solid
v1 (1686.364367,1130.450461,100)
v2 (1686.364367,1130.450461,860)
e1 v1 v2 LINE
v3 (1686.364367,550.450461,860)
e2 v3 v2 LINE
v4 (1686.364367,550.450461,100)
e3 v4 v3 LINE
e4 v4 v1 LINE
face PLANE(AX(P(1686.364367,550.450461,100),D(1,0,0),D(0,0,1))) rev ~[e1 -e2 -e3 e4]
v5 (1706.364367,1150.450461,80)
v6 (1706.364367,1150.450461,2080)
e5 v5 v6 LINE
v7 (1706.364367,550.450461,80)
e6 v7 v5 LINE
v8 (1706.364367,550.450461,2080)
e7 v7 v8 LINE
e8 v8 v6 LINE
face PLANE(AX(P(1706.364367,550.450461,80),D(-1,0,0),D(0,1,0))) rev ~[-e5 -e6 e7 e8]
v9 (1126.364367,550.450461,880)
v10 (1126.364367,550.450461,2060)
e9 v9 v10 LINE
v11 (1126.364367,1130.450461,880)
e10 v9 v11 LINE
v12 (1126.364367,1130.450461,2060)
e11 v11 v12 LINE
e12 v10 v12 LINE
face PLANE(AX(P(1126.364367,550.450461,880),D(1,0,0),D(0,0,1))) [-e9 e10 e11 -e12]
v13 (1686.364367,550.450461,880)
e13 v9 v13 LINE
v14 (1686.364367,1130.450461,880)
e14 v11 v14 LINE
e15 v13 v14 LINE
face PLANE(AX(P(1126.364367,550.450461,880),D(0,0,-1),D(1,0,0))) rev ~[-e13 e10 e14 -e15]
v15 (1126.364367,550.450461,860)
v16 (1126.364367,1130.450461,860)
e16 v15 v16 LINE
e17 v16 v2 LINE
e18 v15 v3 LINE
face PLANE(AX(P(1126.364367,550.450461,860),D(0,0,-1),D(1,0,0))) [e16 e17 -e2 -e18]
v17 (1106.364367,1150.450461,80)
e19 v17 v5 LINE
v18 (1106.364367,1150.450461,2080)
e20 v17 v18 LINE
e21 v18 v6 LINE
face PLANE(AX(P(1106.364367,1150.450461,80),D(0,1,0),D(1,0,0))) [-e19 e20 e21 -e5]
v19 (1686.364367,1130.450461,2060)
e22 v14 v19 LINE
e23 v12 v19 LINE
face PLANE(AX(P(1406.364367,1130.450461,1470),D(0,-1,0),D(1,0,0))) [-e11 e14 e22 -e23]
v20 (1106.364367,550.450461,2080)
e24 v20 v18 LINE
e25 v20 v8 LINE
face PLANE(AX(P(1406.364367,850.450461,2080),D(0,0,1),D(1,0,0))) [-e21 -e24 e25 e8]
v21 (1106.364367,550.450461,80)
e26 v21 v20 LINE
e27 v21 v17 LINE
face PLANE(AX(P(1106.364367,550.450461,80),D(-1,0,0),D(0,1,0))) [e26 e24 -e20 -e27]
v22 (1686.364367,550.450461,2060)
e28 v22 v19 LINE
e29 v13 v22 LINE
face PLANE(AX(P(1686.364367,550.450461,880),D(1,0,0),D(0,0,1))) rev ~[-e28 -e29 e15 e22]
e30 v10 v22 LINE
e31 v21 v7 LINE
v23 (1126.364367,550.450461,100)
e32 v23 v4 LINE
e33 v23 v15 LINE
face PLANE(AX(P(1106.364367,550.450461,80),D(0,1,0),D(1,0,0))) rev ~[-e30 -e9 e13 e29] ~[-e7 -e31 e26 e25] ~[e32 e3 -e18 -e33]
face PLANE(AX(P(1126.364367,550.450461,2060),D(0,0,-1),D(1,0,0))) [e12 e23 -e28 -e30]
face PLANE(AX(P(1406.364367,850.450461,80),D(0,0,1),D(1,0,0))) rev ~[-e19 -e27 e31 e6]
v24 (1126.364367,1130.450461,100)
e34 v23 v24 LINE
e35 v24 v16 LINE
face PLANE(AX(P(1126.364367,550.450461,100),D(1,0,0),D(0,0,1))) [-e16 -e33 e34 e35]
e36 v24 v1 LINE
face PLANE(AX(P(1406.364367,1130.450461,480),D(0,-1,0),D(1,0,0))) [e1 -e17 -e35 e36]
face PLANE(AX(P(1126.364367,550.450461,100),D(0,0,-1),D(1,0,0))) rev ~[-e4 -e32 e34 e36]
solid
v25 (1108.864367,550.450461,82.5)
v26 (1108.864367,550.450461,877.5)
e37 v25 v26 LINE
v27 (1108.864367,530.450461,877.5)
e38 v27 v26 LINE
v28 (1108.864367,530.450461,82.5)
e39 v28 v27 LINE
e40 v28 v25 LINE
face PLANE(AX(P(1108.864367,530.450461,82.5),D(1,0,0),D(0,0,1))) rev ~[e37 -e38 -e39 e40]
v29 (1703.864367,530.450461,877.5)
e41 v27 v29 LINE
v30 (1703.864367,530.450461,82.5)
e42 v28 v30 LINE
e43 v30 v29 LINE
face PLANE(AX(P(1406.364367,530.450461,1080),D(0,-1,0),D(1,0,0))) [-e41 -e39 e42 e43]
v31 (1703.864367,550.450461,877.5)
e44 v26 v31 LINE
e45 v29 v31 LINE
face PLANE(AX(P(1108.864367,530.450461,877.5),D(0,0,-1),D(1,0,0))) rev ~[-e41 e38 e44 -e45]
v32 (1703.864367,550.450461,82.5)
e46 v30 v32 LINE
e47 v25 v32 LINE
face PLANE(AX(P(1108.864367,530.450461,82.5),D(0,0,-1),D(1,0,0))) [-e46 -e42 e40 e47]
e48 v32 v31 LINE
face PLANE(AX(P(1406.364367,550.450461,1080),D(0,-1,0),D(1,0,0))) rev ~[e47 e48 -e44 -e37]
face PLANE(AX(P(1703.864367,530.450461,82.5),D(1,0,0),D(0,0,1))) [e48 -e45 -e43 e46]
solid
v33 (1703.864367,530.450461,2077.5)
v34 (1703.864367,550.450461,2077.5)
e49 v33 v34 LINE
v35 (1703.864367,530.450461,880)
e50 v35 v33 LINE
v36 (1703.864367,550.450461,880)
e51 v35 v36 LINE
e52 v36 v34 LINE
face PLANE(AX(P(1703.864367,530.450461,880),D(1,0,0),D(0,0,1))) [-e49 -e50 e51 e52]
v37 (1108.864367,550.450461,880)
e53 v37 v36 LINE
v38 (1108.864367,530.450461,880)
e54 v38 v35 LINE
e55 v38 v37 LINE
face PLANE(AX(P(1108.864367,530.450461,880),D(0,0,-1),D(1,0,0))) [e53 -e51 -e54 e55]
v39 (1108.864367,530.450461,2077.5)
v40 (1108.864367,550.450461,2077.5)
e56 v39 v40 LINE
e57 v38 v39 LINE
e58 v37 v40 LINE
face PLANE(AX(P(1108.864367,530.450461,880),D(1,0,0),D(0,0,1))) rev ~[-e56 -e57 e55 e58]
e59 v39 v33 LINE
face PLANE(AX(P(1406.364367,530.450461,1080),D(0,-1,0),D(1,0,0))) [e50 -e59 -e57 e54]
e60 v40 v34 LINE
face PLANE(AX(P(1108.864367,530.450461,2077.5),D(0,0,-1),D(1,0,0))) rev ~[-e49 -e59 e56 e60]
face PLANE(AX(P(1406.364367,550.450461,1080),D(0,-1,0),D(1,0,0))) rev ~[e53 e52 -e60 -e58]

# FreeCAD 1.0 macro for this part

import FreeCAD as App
import Part
import Sketcher

doc = App.newDocument("Part")
body = doc.addObject("PartDesign::Body", "Body")

# Sketch on XY plane
sketch1 = body.newObject("Sketcher::SketchObject", "Sketch")
sketch1.AttachmentSupport = (doc.getObject("XY_Plane"), [""])
sketch1.MapMode = "FlatFace"
sketch1.AttachmentOffset = App.Placement(App.Vector(0, 0, 80), App.Rotation())
sketch1.addGeometry([
    Part.LineSegment(App.Vector(1106, 1150, 0), App.Vector(1106, 550, 0)),
    Part.LineSegment(App.Vector(1106, 550, 0), App.Vector(1706, 550, 0)),
    Part.LineSegment(App.Vector(1706, 550, 0), App.Vector(1706, 1150, 0)),
    Part.LineSegment(App.Vector(1706, 1150, 0), App.Vector(1106, 1150, 0)),
], False)
sketch1.addConstraint([
    Sketcher.Constraint("Coincident", 0, 2, 1, 1),
    Sketcher.Constraint("Coincident", 1, 2, 2, 1),
    Sketcher.Constraint("Coincident", 2, 2, 3, 1),
    Sketcher.Constraint("Coincident", 3, 2, 0, 1),
    Sketcher.Constraint("Vertical", 0),
    Sketcher.Constraint("Horizontal", 1),
    Sketcher.Constraint("Vertical", 2),
    Sketcher.Constraint("Horizontal", 3),
    Sketcher.Constraint("Equal", 3, 0),
    Sketcher.Constraint("DistanceX", 1, 1, 1, 2, 600.0),
    Sketcher.Constraint("DistanceY", -1, 1, 0, 2, 550.450461),
    Sketcher.Constraint("DistanceX", -1, 1, 0, 2, 1106.364367),
])
pad1 = body.newObject("PartDesign::Pad", "Pad")
pad1.Profile = sketch1
pad1.Length = 2000

# Sketch on XZ plane
sketch2 = body.newObject("Sketcher::SketchObject", "Sketch001")
sketch2.AttachmentSupport = (doc.getObject("XZ_Plane"), [""])
sketch2.MapMode = "FlatFace"
sketch2.AttachmentOffset = App.Placement(App.Vector(0, 0, -550.450461), App.Rotation())
sketch2.addGeometry([
    Part.LineSegment(App.Vector(1126, 2060, 0), App.Vector(1126, 880, 0)),  # 0
    Part.LineSegment(App.Vector(1126, 880, 0), App.Vector(1686, 880, 0)),  # 1
    Part.LineSegment(App.Vector(1686, 880, 0), App.Vector(1686, 2060, 0)),  # 2
    Part.LineSegment(App.Vector(1686, 2060, 0), App.Vector(1126, 2060, 0)),  # 3
    Part.LineSegment(App.Vector(1126, 860, 0), App.Vector(1126, 100, 0)),  # 4
    Part.LineSegment(App.Vector(1126, 100, 0), App.Vector(1686, 100, 0)),  # 5
    Part.LineSegment(App.Vector(1686, 100, 0), App.Vector(1686, 860, 0)),  # 6
    Part.LineSegment(App.Vector(1686, 860, 0), App.Vector(1126, 860, 0)),  # 7
], False)
sketch2.addConstraint([
    Sketcher.Constraint("Coincident", 0, 2, 1, 1),
    Sketcher.Constraint("Coincident", 1, 2, 2, 1),
    Sketcher.Constraint("Coincident", 2, 2, 3, 1),
    Sketcher.Constraint("Coincident", 3, 2, 0, 1),
    Sketcher.Constraint("Coincident", 4, 2, 5, 1),
    Sketcher.Constraint("Coincident", 5, 2, 6, 1),
    Sketcher.Constraint("Coincident", 6, 2, 7, 1),
    Sketcher.Constraint("Coincident", 7, 2, 4, 1),
    Sketcher.Constraint("Vertical", 0),
    Sketcher.Constraint("Horizontal", 1),
    Sketcher.Constraint("Vertical", 2),
    Sketcher.Constraint("Horizontal", 3),
    Sketcher.Constraint("Vertical", 4),
    Sketcher.Constraint("Horizontal", 5),
    Sketcher.Constraint("Vertical", 6),
    Sketcher.Constraint("Horizontal", 7),
    Sketcher.Constraint("Vertical", 3, 2, 4, 2),
    Sketcher.Constraint("Vertical", 2, 2, 5, 2),
    Sketcher.Constraint("DistanceX", 1, 1, 1, 2, 560.0),
    Sketcher.Constraint("DistanceY", 0, 2, 0, 1, 1180.0),
    Sketcher.Constraint("DistanceY", 4, 2, 4, 1, 760.0),
    Sketcher.Constraint("DistanceY", -1, 1, 0, 2, 880.0),
    Sketcher.Constraint("DistanceY", -1, 1, 4, 2, 100.0),
    Sketcher.Constraint("DistanceX", -1, 1, 0, 2, 1126.364367),
])
pocket1 = body.newObject("PartDesign::Pocket", "Pocket")
pocket1.Profile = sketch2
pocket1.Length = 580

# Sketch on XZ plane
sketch3 = body.newObject("Sketcher::SketchObject", "Sketch002")
sketch3.AttachmentSupport = (doc.getObject("XZ_Plane"), [""])
sketch3.MapMode = "FlatFace"
sketch3.AttachmentOffset = App.Placement(App.Vector(0, 0, -530.450461), App.Rotation())
sketch3.addGeometry([
    Part.LineSegment(App.Vector(1706, 2080, 0), App.Vector(1106, 2080, 0)),  # 0
    Part.LineSegment(App.Vector(1106, 2080, 0), App.Vector(1106, 80, 0)),  # 1
    Part.LineSegment(App.Vector(1106, 80, 0), App.Vector(1706, 80, 0)),  # 2
    Part.LineSegment(App.Vector(1706, 80, 0), App.Vector(1706, 2080, 0)),  # 3
    Part.LineSegment(App.Vector(1704, 82, 0), App.Vector(1109, 82, 0)),  # 4
    Part.LineSegment(App.Vector(1109, 82, 0), App.Vector(1109, 878, 0)),  # 5
    Part.LineSegment(App.Vector(1109, 878, 0), App.Vector(1704, 878, 0)),  # 6
    Part.LineSegment(App.Vector(1704, 878, 0), App.Vector(1704, 82, 0)),  # 7
    Part.LineSegment(App.Vector(1704, 880, 0), App.Vector(1109, 880, 0)),  # 8
    Part.LineSegment(App.Vector(1109, 880, 0), App.Vector(1109, 2078, 0)),  # 9
    Part.LineSegment(App.Vector(1109, 2078, 0), App.Vector(1704, 2078, 0)),  # 10
    Part.LineSegment(App.Vector(1704, 2078, 0), App.Vector(1704, 880, 0)),  # 11
], False)
sketch3.addConstraint([
    Sketcher.Constraint("Coincident", 0, 2, 1, 1),
    Sketcher.Constraint("Coincident", 1, 2, 2, 1),
    Sketcher.Constraint("Coincident", 2, 2, 3, 1),
    Sketcher.Constraint("Coincident", 3, 2, 0, 1),
    Sketcher.Constraint("Coincident", 4, 2, 5, 1),
    Sketcher.Constraint("Coincident", 5, 2, 6, 1),
    Sketcher.Constraint("Coincident", 6, 2, 7, 1),
    Sketcher.Constraint("Coincident", 7, 2, 4, 1),
    Sketcher.Constraint("Coincident", 8, 2, 9, 1),
    Sketcher.Constraint("Coincident", 9, 2, 10, 1),
    Sketcher.Constraint("Coincident", 10, 2, 11, 1),
    Sketcher.Constraint("Coincident", 11, 2, 8, 1),
    Sketcher.Constraint("Horizontal", 0),
    Sketcher.Constraint("Vertical", 1),
    Sketcher.Constraint("Horizontal", 2),
    Sketcher.Constraint("Vertical", 3),
    Sketcher.Constraint("Horizontal", 4),
    Sketcher.Constraint("Vertical", 5),
    Sketcher.Constraint("Horizontal", 6),
    Sketcher.Constraint("Vertical", 7),
    Sketcher.Constraint("Horizontal", 8),
    Sketcher.Constraint("Vertical", 9),
    Sketcher.Constraint("Horizontal", 10),
    Sketcher.Constraint("Vertical", 11),
    Sketcher.Constraint("Vertical", 5, 2, 8, 2),
    Sketcher.Constraint("Vertical", 7, 2, 10, 2),
    Sketcher.Constraint("DistanceX", 0, 2, 0, 1, 600.0),
    Sketcher.Constraint("DistanceX", 4, 2, 4, 1, 595.0),
    Sketcher.Constraint("DistanceY", 1, 2, 1, 1, 2000.0),
    Sketcher.Constraint("DistanceY", 5, 1, 5, 2, 795.0),
    Sketcher.Constraint("DistanceY", 9, 1, 9, 2, 1197.5),
    Sketcher.Constraint("DistanceY", -1, 1, 0, 2, 2080.0),
    Sketcher.Constraint("DistanceY", -1, 1, 8, 2, 880.0),
    Sketcher.Constraint("DistanceY", 5, 2, 9, 2, 1200.0),
    Sketcher.Constraint("DistanceX", 1, 2, 4, 2, 2.5),
    Sketcher.Constraint("DistanceX", -1, 1, 0, 2, 1106.364367),
])
pocket2 = body.newObject("PartDesign::Pocket", "Pocket001")
pocket2.Profile = sketch3
pocket2.Length = 20
body2 = doc.addObject("PartDesign::Body", "Body001")
body2.AllowCompound = True

# Sketch on XZ plane
sketch4 = body2.newObject("Sketcher::SketchObject", "Sketch003")
sketch4.AttachmentSupport = (doc.getObject("XZ_Plane001"), [""])
sketch4.MapMode = "FlatFace"
sketch4.AttachmentOffset = App.Placement(App.Vector(0, 0, -550.450461), App.Rotation())
sketch4.addGeometry([
    Part.LineSegment(App.Vector(1106, 2080, 0), App.Vector(1106, 80, 0)),
    Part.LineSegment(App.Vector(1106, 80, 0), App.Vector(1706, 80, 0)),
    Part.LineSegment(App.Vector(1706, 80, 0), App.Vector(1706, 2080, 0)),
    Part.LineSegment(App.Vector(1706, 2080, 0), App.Vector(1106, 2080, 0)),
], False)
sketch4.addConstraint([
    Sketcher.Constraint("Coincident", 0, 2, 1, 1),
    Sketcher.Constraint("Coincident", 1, 2, 2, 1),
    Sketcher.Constraint("Coincident", 2, 2, 3, 1),
    Sketcher.Constraint("Coincident", 3, 2, 0, 1),
    Sketcher.Constraint("Vertical", 0),
    Sketcher.Constraint("Horizontal", 1),
    Sketcher.Constraint("Vertical", 2),
    Sketcher.Constraint("Horizontal", 3),
    Sketcher.Constraint("DistanceX", 1, 1, 1, 2, 600.0),
    Sketcher.Constraint("DistanceY", 0, 2, 0, 1, 2000.0),
    Sketcher.Constraint("DistanceY", -1, 1, 0, 2, 80.0),
    Sketcher.Constraint("DistanceX", -1, 1, 0, 2, 1106.364367),
])
pad2 = body2.newObject("PartDesign::Pad", "Pad001")
pad2.Profile = sketch4
pad2.Length = 20

# Sketch on XZ plane
sketch5 = body2.newObject("Sketcher::SketchObject", "Sketch004")
sketch5.AttachmentSupport = (doc.getObject("XZ_Plane001"), [""])
sketch5.MapMode = "FlatFace"
sketch5.AttachmentOffset = App.Placement(App.Vector(0, 0, -530.450461), App.Rotation())
sketch5.addGeometry([
    Part.LineSegment(App.Vector(1706, 2080, 0), App.Vector(1106, 2080, 0)),  # 0
    Part.LineSegment(App.Vector(1106, 2080, 0), App.Vector(1106, 80, 0)),  # 1
    Part.LineSegment(App.Vector(1106, 80, 0), App.Vector(1706, 80, 0)),  # 2
    Part.LineSegment(App.Vector(1706, 80, 0), App.Vector(1706, 2080, 0)),  # 3
    Part.LineSegment(App.Vector(1704, 82, 0), App.Vector(1109, 82, 0)),  # 4
    Part.LineSegment(App.Vector(1109, 82, 0), App.Vector(1109, 878, 0)),  # 5
    Part.LineSegment(App.Vector(1109, 878, 0), App.Vector(1704, 878, 0)),  # 6
    Part.LineSegment(App.Vector(1704, 878, 0), App.Vector(1704, 82, 0)),  # 7
    Part.LineSegment(App.Vector(1704, 880, 0), App.Vector(1109, 880, 0)),  # 8
    Part.LineSegment(App.Vector(1109, 880, 0), App.Vector(1109, 2078, 0)),  # 9
    Part.LineSegment(App.Vector(1109, 2078, 0), App.Vector(1704, 2078, 0)),  # 10
    Part.LineSegment(App.Vector(1704, 2078, 0), App.Vector(1704, 880, 0)),  # 11
], False)
sketch5.addConstraint([
    Sketcher.Constraint("Coincident", 0, 2, 1, 1),
    Sketcher.Constraint("Coincident", 1, 2, 2, 1),
    Sketcher.Constraint("Coincident", 2, 2, 3, 1),
    Sketcher.Constraint("Coincident", 3, 2, 0, 1),
    Sketcher.Constraint("Coincident", 4, 2, 5, 1),
    Sketcher.Constraint("Coincident", 5, 2, 6, 1),
    Sketcher.Constraint("Coincident", 6, 2, 7, 1),
    Sketcher.Constraint("Coincident", 7, 2, 4, 1),
    Sketcher.Constraint("Coincident", 8, 2, 9, 1),
    Sketcher.Constraint("Coincident", 9, 2, 10, 1),
    Sketcher.Constraint("Coincident", 10, 2, 11, 1),
    Sketcher.Constraint("Coincident", 11, 2, 8, 1),
    Sketcher.Constraint("Horizontal", 0),
    Sketcher.Constraint("Vertical", 1),
    Sketcher.Constraint("Horizontal", 2),
    Sketcher.Constraint("Vertical", 3),
    Sketcher.Constraint("Horizontal", 4),
    Sketcher.Constraint("Vertical", 5),
    Sketcher.Constraint("Horizontal", 6),
    Sketcher.Constraint("Vertical", 7),
    Sketcher.Constraint("Horizontal", 8),
    Sketcher.Constraint("Vertical", 9),
    Sketcher.Constraint("Horizontal", 10),
    Sketcher.Constraint("Vertical", 11),
    Sketcher.Constraint("Vertical", 5, 2, 8, 2),
    Sketcher.Constraint("Vertical", 7, 2, 10, 2),
    Sketcher.Constraint("DistanceX", 0, 2, 0, 1, 600.0),
    Sketcher.Constraint("DistanceX", 4, 2, 4, 1, 595.0),
    Sketcher.Constraint("DistanceY", 1, 2, 1, 1, 2000.0),
    Sketcher.Constraint("DistanceY", 5, 1, 5, 2, 795.0),
    Sketcher.Constraint("DistanceY", 9, 1, 9, 2, 1197.5),
    Sketcher.Constraint("DistanceY", -1, 1, 0, 2, 2080.0),
    Sketcher.Constraint("DistanceY", -1, 1, 8, 2, 880.0),
    Sketcher.Constraint("DistanceY", 5, 2, 9, 2, 1200.0),
    Sketcher.Constraint("DistanceX", 1, 2, 4, 2, 2.5),
    Sketcher.Constraint("DistanceX", -1, 1, 0, 2, 1106.364367),
])
pocket3 = body2.newObject("PartDesign::Pocket", "Pocket002")
pocket3.Profile = sketch5
pocket3.Length = 20

doc.recompute()
